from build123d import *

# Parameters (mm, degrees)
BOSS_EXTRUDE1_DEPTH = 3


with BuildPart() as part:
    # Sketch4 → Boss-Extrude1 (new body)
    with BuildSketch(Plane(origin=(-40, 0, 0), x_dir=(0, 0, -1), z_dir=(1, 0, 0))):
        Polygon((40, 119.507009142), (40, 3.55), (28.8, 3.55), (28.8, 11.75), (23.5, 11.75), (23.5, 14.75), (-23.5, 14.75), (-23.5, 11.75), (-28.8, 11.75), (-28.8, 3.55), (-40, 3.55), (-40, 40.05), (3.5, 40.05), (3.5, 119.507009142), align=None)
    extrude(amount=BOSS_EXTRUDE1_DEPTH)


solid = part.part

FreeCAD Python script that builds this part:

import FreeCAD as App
import Part
import Sketcher
from FreeCAD import Vector
Q = App.Units.Quantity


def add_polygon(sketch, points):
    """Adds a closed chain of lines whose ends are joined by coincident constraints."""
    first, n = sketch.GeometryCount, len(points)
    for a, b in zip(points, points[1:] + points[:1]):
        sketch.addGeometry(Part.LineSegment(App.Vector(*a, 0), App.Vector(*b, 0)), False)
    for i in range(n):
        sketch.addConstraint(Sketcher.Constraint("Coincident", first + i, 2, first + (i + 1) % n, 1))

doc = App.newDocument("Part")
params = doc.addObject("Spreadsheet::Sheet", "Params")
for row, (alias, value) in enumerate([
    ("sketch1_width", "3 mm"),
    ("sketch1_height", "47 mm"),
    ("sketch1_width2", "36.5 mm"),
    ("sketch1_width3", "8.2 mm"),
    ("sketch1_height2", "43.5 mm"),
    ("pad1_length", "3 mm"),
], start=1):
    params.set(f"A{row}", alias)
    params.set(f"B{row}", "=" + value)
    params.setAlias(f"B{row}", alias)

body = doc.addObject("PartDesign::Body", "Body")

# Sketch on YZ plane
sketch1 = doc.addObject("Sketcher::SketchObject", "Sketch")
body.addObject(sketch1)
sketch1.AttachmentSupport = (doc.YZ_Plane, [""])
sketch1.MapMode = "FlatFace"
sketch1.AttachmentOffset = App.Placement(Vector(0, 0, -40), App.Rotation())
add_polygon(sketch1, [(3.55, -40), (119.507009, -40), (119.507009, -3.5), (40.05, -3.5), (40.05, 40), (3.55, 40), (3.55, 28.8), (11.75, 28.8), (11.75, 23.5), (14.75, 23.5), (14.75, -23.5), (11.75, -23.5), (11.75, -28.8), (3.55, -28.8)])  # lines 0-13
sketch1.addConstraint([
    Sketcher.Constraint("Horizontal", 0),
    Sketcher.Constraint("Vertical", 1),
    Sketcher.Constraint("Horizontal", 2),
    Sketcher.Constraint("Vertical", 3),
    Sketcher.Constraint("Horizontal", 4),
    Sketcher.Constraint("Vertical", 5),
    Sketcher.Constraint("Horizontal", 6),
    Sketcher.Constraint("Vertical", 7),
    Sketcher.Constraint("Horizontal", 8),
    Sketcher.Constraint("Vertical", 9),
    Sketcher.Constraint("Horizontal", 10),
    Sketcher.Constraint("Vertical", 11),
    Sketcher.Constraint("Horizontal", 12),
    Sketcher.Constraint("Vertical", 13),
    Sketcher.Constraint("Symmetric", 7, 2, 10, 2, -1),
    Sketcher.Constraint("Symmetric", 5, 2, 12, 2, -1),
    Sketcher.Constraint("Equal", 4, 1),
    Sketcher.Constraint("Equal", 5, 13),
    Sketcher.Constraint("DistanceX", 8, 1, 8, 2, Q("3 mm")),
    Sketcher.Constraint("DistanceY", 9, 2, 9, 1, Q("47 mm")),
    Sketcher.Constraint("DistanceX", 4, 2, 4, 1, Q("36.5 mm")),
    Sketcher.Constraint("DistanceX", 6, 1, 6, 2, Q("8.2 mm")),
    Sketcher.Constraint("DistanceY", 3, 1, 3, 2, Q("43.5 mm")),
    Sketcher.Constraint("DistanceY", 5, 2, 5, 1, Q("11.2 mm")),
    Sketcher.Constraint("DistanceX", -1, 1, 2, 2, Q("40.05 mm")),
    Sketcher.Constraint("DistanceX", 0, 1, 0, 2, Q("115.957009 mm")),
])
sketch1.setExpression("Constraints[32]", "Params.sketch1_width")
sketch1.setExpression("Constraints[33]", "Params.sketch1_height")
sketch1.setExpression("Constraints[34]", "Params.sketch1_width2")
sketch1.setExpression("Constraints[35]", "Params.sketch1_width3")
sketch1.setExpression("Constraints[36]", "Params.sketch1_height2")
pad1 = doc.addObject("PartDesign::Pad", "Pad")
body.addObject(pad1)
pad1.Profile = sketch1
pad1.setExpression("Length", "Params.pad1_length")

doc.recompute()
